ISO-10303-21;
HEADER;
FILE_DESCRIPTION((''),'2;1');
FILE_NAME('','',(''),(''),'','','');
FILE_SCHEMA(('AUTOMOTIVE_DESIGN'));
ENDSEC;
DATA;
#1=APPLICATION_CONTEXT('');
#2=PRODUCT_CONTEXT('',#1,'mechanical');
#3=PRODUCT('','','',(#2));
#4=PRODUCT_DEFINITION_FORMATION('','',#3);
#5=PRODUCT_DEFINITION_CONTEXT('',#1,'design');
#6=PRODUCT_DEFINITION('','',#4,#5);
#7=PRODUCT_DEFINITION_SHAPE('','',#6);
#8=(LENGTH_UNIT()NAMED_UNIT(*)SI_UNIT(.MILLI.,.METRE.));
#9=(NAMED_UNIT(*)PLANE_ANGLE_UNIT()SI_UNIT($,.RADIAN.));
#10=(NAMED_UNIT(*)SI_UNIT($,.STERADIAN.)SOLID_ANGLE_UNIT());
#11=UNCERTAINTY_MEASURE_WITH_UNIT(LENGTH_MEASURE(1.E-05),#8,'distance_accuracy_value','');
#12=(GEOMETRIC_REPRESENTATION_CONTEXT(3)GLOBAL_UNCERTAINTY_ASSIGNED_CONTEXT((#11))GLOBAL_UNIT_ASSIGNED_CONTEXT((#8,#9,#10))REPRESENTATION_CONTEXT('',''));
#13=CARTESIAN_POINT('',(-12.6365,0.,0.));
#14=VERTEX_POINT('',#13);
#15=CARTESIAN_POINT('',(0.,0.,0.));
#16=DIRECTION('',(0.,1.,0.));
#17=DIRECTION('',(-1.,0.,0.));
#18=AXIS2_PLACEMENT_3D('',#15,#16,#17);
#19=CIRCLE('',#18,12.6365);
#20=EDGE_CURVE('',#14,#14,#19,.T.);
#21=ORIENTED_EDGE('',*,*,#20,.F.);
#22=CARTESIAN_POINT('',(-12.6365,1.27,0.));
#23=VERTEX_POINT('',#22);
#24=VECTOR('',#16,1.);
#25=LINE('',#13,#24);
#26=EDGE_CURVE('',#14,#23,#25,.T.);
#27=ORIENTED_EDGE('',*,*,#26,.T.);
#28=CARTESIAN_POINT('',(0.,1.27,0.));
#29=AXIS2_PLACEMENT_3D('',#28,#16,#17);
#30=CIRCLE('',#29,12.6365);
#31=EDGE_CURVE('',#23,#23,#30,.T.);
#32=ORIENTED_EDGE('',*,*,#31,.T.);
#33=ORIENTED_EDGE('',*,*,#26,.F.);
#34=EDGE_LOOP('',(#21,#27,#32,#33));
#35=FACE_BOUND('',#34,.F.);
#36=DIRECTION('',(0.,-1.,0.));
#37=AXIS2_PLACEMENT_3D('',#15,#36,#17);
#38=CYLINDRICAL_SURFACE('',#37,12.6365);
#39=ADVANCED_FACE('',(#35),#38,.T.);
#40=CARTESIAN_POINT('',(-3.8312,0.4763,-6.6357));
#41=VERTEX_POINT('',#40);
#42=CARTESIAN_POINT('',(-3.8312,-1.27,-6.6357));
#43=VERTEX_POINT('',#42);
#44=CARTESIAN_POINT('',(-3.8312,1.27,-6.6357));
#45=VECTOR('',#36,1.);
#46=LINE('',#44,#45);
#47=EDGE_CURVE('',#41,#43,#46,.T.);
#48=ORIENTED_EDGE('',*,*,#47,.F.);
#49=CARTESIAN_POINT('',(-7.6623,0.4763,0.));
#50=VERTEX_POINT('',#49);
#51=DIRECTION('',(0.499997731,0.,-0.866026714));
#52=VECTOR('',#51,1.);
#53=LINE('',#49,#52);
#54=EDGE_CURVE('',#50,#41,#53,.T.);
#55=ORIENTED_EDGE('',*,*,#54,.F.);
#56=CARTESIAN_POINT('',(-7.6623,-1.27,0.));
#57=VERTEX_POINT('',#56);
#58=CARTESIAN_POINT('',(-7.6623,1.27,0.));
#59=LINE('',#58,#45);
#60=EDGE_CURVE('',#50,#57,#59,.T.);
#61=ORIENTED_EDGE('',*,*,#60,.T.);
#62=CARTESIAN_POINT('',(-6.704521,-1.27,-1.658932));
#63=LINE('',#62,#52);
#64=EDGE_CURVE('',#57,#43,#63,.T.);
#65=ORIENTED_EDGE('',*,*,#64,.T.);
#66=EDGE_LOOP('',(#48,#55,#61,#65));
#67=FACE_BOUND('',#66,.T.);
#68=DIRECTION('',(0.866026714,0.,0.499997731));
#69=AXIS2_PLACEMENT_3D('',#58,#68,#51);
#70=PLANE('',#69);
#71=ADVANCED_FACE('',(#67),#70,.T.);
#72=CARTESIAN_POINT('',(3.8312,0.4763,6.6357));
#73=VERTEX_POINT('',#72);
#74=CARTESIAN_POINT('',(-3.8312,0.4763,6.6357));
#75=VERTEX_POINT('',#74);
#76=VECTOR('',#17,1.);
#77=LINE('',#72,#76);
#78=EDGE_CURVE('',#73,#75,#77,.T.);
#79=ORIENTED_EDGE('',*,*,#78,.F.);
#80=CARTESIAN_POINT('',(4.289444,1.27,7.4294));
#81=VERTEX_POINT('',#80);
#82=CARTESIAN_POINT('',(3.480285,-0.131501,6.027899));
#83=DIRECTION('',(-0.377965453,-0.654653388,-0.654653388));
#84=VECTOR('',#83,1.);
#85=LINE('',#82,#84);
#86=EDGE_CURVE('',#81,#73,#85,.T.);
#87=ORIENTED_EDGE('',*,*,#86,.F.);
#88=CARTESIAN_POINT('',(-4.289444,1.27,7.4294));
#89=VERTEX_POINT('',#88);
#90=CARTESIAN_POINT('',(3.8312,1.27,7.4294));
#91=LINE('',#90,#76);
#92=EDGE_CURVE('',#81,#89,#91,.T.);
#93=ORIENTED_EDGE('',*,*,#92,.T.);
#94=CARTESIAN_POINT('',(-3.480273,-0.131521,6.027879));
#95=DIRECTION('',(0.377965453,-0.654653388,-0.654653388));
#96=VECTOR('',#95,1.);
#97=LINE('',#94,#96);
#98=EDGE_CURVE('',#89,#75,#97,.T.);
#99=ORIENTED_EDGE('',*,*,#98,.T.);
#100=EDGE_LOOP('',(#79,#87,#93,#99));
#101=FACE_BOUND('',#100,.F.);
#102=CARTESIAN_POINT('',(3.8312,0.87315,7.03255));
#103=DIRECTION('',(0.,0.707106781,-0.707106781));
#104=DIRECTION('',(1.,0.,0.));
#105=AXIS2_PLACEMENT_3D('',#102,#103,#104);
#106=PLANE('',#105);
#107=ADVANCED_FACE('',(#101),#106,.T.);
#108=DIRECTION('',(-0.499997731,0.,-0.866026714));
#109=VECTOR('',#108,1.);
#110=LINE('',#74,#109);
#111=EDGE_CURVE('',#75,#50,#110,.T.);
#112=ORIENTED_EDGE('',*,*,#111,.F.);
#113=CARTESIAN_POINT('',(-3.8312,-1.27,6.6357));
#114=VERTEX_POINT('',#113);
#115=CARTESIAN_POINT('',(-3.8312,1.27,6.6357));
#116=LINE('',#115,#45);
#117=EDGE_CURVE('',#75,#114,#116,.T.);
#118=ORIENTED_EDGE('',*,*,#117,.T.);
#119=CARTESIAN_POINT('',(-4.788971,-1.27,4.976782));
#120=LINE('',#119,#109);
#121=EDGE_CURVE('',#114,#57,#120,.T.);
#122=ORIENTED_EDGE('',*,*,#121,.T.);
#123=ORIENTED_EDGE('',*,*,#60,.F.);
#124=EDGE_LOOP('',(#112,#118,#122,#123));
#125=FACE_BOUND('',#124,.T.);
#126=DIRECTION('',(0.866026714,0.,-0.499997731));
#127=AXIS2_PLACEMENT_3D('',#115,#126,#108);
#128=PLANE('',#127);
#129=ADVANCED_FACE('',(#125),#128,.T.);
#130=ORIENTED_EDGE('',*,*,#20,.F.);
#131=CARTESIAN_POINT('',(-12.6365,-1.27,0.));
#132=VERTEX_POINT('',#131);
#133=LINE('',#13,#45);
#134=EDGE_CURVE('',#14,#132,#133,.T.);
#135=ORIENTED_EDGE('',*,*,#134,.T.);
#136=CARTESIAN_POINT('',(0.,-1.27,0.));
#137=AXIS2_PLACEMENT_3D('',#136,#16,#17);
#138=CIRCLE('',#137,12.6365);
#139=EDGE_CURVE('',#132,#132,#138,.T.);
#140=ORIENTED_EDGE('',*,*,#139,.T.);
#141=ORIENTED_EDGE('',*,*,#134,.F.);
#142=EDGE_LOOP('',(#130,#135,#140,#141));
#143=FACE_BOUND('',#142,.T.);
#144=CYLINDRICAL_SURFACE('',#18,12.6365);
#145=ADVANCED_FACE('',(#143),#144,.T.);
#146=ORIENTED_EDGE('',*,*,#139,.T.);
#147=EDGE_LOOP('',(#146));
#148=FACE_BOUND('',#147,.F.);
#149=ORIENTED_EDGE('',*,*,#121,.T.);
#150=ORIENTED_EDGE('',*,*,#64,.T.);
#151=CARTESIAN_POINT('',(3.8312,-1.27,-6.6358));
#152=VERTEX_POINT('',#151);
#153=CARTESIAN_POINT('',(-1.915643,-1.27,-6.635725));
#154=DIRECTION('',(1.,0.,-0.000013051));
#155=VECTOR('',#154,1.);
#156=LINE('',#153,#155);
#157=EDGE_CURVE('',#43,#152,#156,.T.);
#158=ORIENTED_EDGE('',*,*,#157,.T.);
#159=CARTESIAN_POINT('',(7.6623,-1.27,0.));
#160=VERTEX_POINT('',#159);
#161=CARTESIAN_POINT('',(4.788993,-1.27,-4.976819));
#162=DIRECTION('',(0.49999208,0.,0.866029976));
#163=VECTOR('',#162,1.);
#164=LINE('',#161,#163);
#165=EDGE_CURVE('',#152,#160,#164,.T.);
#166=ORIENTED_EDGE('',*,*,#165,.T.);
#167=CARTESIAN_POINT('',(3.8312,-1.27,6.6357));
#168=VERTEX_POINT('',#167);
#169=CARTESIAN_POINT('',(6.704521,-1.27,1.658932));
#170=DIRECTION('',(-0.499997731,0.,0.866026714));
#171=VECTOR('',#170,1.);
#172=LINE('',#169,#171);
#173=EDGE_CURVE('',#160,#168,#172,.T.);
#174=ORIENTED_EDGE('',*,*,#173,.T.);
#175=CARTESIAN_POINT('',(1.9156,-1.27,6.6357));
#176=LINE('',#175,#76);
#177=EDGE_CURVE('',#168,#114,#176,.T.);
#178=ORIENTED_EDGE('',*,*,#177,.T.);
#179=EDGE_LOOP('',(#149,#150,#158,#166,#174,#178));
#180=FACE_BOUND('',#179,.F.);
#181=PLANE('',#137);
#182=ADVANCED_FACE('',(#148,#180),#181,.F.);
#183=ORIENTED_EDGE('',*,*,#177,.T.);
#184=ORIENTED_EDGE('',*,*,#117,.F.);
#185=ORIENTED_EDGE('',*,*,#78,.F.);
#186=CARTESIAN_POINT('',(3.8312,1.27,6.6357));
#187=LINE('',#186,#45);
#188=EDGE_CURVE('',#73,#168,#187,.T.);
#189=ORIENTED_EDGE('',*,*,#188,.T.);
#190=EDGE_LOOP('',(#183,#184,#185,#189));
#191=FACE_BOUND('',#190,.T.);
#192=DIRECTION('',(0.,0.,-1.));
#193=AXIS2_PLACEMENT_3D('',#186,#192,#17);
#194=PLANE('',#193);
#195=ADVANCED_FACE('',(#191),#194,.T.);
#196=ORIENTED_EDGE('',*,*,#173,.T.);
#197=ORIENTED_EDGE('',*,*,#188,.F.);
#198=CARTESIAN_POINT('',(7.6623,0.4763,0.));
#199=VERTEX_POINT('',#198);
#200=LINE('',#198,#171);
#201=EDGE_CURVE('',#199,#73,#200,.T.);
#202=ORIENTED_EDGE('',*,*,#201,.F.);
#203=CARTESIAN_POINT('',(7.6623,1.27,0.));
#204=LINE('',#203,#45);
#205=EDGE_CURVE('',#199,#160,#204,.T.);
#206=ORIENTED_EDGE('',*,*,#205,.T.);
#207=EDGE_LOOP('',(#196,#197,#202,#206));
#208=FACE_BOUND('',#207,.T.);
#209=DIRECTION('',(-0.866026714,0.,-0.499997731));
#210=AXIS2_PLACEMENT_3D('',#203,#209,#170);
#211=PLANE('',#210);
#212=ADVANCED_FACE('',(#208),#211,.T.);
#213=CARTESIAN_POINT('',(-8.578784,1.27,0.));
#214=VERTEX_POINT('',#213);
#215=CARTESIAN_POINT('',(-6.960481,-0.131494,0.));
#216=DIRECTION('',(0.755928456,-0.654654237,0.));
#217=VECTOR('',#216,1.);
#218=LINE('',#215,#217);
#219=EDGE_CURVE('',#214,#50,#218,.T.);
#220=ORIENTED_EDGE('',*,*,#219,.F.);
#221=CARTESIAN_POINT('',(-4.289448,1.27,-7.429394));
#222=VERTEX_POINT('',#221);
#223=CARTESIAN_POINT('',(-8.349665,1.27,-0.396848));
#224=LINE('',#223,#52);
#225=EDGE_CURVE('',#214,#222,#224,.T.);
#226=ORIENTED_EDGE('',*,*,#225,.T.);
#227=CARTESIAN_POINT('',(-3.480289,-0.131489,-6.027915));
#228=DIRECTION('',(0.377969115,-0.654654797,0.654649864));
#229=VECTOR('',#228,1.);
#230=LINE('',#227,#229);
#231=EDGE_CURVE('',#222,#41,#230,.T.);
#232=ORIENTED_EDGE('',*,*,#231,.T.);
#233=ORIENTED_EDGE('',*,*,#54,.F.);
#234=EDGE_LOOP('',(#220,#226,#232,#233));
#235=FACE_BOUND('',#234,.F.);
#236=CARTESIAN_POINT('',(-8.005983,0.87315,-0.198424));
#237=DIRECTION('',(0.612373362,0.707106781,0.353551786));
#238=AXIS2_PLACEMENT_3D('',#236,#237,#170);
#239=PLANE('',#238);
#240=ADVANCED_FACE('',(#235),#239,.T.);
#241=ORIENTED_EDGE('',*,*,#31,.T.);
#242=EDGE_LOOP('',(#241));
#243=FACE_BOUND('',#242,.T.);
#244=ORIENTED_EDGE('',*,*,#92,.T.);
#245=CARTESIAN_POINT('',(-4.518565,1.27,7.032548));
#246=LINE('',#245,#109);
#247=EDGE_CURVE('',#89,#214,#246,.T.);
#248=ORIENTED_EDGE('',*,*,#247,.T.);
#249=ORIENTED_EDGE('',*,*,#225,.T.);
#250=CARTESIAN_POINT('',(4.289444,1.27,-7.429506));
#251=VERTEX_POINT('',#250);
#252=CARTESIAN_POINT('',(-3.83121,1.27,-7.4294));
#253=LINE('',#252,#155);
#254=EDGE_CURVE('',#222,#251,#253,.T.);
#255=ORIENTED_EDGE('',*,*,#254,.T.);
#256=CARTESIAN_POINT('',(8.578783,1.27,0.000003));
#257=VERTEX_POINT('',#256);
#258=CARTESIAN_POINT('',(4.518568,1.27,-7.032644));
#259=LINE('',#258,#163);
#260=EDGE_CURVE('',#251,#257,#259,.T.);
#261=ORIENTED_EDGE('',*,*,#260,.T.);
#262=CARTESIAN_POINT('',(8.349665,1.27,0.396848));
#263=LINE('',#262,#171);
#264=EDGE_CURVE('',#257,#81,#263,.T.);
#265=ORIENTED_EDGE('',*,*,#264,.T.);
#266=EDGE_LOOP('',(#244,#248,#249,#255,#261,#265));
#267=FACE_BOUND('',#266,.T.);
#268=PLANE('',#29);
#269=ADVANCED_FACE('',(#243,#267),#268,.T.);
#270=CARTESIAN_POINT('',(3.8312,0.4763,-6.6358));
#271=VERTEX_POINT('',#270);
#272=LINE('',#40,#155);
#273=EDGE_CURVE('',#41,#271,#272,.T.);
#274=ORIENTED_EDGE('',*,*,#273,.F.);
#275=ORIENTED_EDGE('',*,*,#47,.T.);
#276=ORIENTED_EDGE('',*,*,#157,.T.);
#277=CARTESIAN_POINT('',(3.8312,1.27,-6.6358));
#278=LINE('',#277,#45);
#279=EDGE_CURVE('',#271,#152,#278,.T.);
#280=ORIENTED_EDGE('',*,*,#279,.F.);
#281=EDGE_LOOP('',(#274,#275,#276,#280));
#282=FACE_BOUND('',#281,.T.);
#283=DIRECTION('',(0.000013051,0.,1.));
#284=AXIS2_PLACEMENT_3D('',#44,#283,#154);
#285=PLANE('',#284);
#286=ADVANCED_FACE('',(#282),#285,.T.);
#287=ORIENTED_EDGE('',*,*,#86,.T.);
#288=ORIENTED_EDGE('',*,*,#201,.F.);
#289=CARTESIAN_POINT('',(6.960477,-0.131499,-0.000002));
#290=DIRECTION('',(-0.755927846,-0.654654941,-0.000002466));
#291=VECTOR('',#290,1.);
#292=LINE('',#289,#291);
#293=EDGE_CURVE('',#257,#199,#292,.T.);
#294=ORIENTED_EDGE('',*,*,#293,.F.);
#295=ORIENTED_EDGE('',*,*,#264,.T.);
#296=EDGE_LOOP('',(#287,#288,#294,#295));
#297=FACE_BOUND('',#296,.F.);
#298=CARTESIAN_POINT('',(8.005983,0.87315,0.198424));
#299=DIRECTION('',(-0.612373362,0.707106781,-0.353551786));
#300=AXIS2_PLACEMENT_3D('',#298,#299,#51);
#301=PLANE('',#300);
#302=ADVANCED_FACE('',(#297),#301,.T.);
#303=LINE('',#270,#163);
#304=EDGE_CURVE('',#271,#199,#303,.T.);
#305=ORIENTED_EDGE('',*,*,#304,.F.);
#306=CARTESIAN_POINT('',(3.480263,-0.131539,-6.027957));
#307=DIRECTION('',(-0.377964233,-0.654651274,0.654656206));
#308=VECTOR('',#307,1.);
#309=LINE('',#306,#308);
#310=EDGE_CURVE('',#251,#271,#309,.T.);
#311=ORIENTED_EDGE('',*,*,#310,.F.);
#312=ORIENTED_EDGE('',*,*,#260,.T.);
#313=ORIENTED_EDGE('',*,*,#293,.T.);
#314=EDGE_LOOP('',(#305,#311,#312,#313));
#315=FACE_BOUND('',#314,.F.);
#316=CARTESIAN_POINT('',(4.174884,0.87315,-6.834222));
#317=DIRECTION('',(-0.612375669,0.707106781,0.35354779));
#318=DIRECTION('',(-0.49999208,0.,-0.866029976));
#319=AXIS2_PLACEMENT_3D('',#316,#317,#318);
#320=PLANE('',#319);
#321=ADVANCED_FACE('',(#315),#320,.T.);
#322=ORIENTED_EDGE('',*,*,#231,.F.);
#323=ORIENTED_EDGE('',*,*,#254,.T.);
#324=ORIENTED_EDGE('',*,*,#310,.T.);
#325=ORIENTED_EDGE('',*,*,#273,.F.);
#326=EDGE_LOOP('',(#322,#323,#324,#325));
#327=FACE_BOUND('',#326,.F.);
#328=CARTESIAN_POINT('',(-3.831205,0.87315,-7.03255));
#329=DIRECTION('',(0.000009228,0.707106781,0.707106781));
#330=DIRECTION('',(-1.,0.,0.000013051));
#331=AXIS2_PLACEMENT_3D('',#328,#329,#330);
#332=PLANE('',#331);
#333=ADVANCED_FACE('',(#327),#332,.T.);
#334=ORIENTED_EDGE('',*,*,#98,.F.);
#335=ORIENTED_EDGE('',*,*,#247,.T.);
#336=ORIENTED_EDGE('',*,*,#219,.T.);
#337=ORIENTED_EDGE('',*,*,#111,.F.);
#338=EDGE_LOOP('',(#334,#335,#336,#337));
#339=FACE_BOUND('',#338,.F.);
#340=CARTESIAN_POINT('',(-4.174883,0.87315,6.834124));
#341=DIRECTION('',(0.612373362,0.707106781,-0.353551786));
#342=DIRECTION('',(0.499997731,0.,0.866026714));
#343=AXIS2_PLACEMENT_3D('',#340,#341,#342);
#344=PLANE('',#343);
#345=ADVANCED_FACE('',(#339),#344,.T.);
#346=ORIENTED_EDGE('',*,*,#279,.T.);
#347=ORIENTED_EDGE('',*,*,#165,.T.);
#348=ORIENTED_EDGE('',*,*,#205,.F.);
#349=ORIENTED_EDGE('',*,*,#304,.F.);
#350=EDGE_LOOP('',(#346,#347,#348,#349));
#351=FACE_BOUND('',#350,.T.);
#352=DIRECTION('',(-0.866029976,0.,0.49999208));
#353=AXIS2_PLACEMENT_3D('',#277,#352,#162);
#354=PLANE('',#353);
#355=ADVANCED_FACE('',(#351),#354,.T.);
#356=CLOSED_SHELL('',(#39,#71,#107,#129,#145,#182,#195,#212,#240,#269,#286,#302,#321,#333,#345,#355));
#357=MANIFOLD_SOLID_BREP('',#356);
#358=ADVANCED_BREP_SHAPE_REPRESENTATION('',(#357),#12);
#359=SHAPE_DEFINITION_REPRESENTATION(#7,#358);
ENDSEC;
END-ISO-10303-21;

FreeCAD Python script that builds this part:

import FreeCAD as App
import Part
import Sketcher
from FreeCAD import Vector
Q = App.Units.Quantity


def edges_at(feature, points):
    """Names of the edges that pass closest to the given points."""
    edges = feature.Shape.Edges
    near = lambda p: min(range(len(edges)), key=lambda i: edges[i].distToShape(Part.Vertex(*p))[0])
    return sorted({f"Edge{near(p) + 1}" for p in points})

doc = App.newDocument("Part")
params = doc.addObject("Spreadsheet::Sheet", "Params")
for row, (alias, value) in enumerate([
    ("sketch1_diameter", "0.995 in"),
    ("pad1_length", "0.1 in"),
    ("chamfer_size", "0.031248 in"),
], start=1):
    params.set(f"A{row}", alias)
    params.set(f"B{row}", "=" + value)
    params.setAlias(f"B{row}", alias)

body = doc.addObject("PartDesign::Body", "Body")

# Sketch on XZ plane
sketch1 = body.newObject("Sketcher::SketchObject", "Sketch")
sketch1.AttachmentSupport = (doc.getObject("XZ_Plane"), [""])
sketch1.MapMode = "FlatFace"
sketch1.addGeometry(Part.Circle(Vector(0, 0, 0), Vector(0, 0, 1), 13), False)
sketch1.addConstraint([
    Sketcher.Constraint("Coincident", 0, 3, -1, 1),
    Sketcher.Constraint("Diameter", 0, Q("0.995 in")),
])
sketch1.setExpression("Constraints[1]", "Params.sketch1_diameter")
pad1 = body.newObject("PartDesign::Pad", "Pad")
pad1.Profile = sketch1
pad1.setExpression("Length", "Params.pad1_length")
pad1.Midplane = True

# Sketch on XZ plane
sketch2 = body.newObject("Sketcher::SketchObject", "Sketch001")
sketch2.AttachmentSupport = (doc.getObject("XZ_Plane"), [""])
sketch2.MapMode = "FlatFace"
sketch2.AttachmentOffset = App.Placement(Vector(0, 0, -0.05 * 25.4), App.Rotation())
sketch2.addGeometry([
    Part.LineSegment(Vector(4, 7, 0), Vector(8, 0, 0)),  # 0
    Part.LineSegment(Vector(8, 0, 0), Vector(4, -7, 0)),  # 1
    Part.LineSegment(Vector(4, -7, 0), Vector(-4, -7, 0)),  # 2
    Part.LineSegment(Vector(-4, -7, 0), Vector(-8, 0, 0)),  # 3
    Part.LineSegment(Vector(-8, 0, 0), Vector(-4, 7, 0)),  # 4
    Part.LineSegment(Vector(-4, 7, 0), Vector(4, 7, 0)),  # 5
], False)
sketch2.addConstraint([
    Sketcher.Constraint("Coincident", 0, 2, 1, 1),
    Sketcher.Constraint("Coincident", 1, 2, 2, 1),
    Sketcher.Constraint("Coincident", 2, 2, 3, 1),
    Sketcher.Constraint("Coincident", 3, 2, 4, 1),
    Sketcher.Constraint("Coincident", 4, 2, 5, 1),
    Sketcher.Constraint("Coincident", 5, 2, 0, 1),
    Sketcher.Constraint("Horizontal", 2),
    Sketcher.Constraint("Horizontal", 5),
    Sketcher.Constraint("Symmetric", 0, 2, 3, 2, -1, 1),
    Sketcher.Constraint("Symmetric", 1, 2, 4, 2, -1, 1),
    Sketcher.Constraint("PointOnObject", 0, 2, -1),
    Sketcher.Constraint("Parallel", 0, 3),
    Sketcher.Constraint("Vertical", 2, 2, 4, 2),
    Sketcher.Constraint("Angle", 0, Q("-60.0002 deg")),
    Sketcher.Constraint("DistanceY", 2, 2, 4, 2, Q("0.5225 in")),
    Sketcher.Constraint("DistanceX", 2, 2, 2, 1, 7.6624),
])
pocket1 = body.newObject("PartDesign::Pocket", "Pocket")
pocket1.Profile = sketch2
pocket1.Type = "ThroughAll"
pocket1.Reversed = True
doc.recompute()

chamfer = body.newObject("PartDesign::Chamfer", "Chamfer")
chamfer.Base = (pocket1, edges_at(pocket1, [
    (-5.747, 1.27, -3.318),
    (-5.747, 1.27, 3.318),
    (0, 1.27, 6.636),
    (5.747, 1.27, 3.318),
    (5.747, 1.27, -3.318),
    (0, 1.27, -6.636),
]))
chamfer.setExpression("Size", "Params.chamfer_size")

doc.recompute()
